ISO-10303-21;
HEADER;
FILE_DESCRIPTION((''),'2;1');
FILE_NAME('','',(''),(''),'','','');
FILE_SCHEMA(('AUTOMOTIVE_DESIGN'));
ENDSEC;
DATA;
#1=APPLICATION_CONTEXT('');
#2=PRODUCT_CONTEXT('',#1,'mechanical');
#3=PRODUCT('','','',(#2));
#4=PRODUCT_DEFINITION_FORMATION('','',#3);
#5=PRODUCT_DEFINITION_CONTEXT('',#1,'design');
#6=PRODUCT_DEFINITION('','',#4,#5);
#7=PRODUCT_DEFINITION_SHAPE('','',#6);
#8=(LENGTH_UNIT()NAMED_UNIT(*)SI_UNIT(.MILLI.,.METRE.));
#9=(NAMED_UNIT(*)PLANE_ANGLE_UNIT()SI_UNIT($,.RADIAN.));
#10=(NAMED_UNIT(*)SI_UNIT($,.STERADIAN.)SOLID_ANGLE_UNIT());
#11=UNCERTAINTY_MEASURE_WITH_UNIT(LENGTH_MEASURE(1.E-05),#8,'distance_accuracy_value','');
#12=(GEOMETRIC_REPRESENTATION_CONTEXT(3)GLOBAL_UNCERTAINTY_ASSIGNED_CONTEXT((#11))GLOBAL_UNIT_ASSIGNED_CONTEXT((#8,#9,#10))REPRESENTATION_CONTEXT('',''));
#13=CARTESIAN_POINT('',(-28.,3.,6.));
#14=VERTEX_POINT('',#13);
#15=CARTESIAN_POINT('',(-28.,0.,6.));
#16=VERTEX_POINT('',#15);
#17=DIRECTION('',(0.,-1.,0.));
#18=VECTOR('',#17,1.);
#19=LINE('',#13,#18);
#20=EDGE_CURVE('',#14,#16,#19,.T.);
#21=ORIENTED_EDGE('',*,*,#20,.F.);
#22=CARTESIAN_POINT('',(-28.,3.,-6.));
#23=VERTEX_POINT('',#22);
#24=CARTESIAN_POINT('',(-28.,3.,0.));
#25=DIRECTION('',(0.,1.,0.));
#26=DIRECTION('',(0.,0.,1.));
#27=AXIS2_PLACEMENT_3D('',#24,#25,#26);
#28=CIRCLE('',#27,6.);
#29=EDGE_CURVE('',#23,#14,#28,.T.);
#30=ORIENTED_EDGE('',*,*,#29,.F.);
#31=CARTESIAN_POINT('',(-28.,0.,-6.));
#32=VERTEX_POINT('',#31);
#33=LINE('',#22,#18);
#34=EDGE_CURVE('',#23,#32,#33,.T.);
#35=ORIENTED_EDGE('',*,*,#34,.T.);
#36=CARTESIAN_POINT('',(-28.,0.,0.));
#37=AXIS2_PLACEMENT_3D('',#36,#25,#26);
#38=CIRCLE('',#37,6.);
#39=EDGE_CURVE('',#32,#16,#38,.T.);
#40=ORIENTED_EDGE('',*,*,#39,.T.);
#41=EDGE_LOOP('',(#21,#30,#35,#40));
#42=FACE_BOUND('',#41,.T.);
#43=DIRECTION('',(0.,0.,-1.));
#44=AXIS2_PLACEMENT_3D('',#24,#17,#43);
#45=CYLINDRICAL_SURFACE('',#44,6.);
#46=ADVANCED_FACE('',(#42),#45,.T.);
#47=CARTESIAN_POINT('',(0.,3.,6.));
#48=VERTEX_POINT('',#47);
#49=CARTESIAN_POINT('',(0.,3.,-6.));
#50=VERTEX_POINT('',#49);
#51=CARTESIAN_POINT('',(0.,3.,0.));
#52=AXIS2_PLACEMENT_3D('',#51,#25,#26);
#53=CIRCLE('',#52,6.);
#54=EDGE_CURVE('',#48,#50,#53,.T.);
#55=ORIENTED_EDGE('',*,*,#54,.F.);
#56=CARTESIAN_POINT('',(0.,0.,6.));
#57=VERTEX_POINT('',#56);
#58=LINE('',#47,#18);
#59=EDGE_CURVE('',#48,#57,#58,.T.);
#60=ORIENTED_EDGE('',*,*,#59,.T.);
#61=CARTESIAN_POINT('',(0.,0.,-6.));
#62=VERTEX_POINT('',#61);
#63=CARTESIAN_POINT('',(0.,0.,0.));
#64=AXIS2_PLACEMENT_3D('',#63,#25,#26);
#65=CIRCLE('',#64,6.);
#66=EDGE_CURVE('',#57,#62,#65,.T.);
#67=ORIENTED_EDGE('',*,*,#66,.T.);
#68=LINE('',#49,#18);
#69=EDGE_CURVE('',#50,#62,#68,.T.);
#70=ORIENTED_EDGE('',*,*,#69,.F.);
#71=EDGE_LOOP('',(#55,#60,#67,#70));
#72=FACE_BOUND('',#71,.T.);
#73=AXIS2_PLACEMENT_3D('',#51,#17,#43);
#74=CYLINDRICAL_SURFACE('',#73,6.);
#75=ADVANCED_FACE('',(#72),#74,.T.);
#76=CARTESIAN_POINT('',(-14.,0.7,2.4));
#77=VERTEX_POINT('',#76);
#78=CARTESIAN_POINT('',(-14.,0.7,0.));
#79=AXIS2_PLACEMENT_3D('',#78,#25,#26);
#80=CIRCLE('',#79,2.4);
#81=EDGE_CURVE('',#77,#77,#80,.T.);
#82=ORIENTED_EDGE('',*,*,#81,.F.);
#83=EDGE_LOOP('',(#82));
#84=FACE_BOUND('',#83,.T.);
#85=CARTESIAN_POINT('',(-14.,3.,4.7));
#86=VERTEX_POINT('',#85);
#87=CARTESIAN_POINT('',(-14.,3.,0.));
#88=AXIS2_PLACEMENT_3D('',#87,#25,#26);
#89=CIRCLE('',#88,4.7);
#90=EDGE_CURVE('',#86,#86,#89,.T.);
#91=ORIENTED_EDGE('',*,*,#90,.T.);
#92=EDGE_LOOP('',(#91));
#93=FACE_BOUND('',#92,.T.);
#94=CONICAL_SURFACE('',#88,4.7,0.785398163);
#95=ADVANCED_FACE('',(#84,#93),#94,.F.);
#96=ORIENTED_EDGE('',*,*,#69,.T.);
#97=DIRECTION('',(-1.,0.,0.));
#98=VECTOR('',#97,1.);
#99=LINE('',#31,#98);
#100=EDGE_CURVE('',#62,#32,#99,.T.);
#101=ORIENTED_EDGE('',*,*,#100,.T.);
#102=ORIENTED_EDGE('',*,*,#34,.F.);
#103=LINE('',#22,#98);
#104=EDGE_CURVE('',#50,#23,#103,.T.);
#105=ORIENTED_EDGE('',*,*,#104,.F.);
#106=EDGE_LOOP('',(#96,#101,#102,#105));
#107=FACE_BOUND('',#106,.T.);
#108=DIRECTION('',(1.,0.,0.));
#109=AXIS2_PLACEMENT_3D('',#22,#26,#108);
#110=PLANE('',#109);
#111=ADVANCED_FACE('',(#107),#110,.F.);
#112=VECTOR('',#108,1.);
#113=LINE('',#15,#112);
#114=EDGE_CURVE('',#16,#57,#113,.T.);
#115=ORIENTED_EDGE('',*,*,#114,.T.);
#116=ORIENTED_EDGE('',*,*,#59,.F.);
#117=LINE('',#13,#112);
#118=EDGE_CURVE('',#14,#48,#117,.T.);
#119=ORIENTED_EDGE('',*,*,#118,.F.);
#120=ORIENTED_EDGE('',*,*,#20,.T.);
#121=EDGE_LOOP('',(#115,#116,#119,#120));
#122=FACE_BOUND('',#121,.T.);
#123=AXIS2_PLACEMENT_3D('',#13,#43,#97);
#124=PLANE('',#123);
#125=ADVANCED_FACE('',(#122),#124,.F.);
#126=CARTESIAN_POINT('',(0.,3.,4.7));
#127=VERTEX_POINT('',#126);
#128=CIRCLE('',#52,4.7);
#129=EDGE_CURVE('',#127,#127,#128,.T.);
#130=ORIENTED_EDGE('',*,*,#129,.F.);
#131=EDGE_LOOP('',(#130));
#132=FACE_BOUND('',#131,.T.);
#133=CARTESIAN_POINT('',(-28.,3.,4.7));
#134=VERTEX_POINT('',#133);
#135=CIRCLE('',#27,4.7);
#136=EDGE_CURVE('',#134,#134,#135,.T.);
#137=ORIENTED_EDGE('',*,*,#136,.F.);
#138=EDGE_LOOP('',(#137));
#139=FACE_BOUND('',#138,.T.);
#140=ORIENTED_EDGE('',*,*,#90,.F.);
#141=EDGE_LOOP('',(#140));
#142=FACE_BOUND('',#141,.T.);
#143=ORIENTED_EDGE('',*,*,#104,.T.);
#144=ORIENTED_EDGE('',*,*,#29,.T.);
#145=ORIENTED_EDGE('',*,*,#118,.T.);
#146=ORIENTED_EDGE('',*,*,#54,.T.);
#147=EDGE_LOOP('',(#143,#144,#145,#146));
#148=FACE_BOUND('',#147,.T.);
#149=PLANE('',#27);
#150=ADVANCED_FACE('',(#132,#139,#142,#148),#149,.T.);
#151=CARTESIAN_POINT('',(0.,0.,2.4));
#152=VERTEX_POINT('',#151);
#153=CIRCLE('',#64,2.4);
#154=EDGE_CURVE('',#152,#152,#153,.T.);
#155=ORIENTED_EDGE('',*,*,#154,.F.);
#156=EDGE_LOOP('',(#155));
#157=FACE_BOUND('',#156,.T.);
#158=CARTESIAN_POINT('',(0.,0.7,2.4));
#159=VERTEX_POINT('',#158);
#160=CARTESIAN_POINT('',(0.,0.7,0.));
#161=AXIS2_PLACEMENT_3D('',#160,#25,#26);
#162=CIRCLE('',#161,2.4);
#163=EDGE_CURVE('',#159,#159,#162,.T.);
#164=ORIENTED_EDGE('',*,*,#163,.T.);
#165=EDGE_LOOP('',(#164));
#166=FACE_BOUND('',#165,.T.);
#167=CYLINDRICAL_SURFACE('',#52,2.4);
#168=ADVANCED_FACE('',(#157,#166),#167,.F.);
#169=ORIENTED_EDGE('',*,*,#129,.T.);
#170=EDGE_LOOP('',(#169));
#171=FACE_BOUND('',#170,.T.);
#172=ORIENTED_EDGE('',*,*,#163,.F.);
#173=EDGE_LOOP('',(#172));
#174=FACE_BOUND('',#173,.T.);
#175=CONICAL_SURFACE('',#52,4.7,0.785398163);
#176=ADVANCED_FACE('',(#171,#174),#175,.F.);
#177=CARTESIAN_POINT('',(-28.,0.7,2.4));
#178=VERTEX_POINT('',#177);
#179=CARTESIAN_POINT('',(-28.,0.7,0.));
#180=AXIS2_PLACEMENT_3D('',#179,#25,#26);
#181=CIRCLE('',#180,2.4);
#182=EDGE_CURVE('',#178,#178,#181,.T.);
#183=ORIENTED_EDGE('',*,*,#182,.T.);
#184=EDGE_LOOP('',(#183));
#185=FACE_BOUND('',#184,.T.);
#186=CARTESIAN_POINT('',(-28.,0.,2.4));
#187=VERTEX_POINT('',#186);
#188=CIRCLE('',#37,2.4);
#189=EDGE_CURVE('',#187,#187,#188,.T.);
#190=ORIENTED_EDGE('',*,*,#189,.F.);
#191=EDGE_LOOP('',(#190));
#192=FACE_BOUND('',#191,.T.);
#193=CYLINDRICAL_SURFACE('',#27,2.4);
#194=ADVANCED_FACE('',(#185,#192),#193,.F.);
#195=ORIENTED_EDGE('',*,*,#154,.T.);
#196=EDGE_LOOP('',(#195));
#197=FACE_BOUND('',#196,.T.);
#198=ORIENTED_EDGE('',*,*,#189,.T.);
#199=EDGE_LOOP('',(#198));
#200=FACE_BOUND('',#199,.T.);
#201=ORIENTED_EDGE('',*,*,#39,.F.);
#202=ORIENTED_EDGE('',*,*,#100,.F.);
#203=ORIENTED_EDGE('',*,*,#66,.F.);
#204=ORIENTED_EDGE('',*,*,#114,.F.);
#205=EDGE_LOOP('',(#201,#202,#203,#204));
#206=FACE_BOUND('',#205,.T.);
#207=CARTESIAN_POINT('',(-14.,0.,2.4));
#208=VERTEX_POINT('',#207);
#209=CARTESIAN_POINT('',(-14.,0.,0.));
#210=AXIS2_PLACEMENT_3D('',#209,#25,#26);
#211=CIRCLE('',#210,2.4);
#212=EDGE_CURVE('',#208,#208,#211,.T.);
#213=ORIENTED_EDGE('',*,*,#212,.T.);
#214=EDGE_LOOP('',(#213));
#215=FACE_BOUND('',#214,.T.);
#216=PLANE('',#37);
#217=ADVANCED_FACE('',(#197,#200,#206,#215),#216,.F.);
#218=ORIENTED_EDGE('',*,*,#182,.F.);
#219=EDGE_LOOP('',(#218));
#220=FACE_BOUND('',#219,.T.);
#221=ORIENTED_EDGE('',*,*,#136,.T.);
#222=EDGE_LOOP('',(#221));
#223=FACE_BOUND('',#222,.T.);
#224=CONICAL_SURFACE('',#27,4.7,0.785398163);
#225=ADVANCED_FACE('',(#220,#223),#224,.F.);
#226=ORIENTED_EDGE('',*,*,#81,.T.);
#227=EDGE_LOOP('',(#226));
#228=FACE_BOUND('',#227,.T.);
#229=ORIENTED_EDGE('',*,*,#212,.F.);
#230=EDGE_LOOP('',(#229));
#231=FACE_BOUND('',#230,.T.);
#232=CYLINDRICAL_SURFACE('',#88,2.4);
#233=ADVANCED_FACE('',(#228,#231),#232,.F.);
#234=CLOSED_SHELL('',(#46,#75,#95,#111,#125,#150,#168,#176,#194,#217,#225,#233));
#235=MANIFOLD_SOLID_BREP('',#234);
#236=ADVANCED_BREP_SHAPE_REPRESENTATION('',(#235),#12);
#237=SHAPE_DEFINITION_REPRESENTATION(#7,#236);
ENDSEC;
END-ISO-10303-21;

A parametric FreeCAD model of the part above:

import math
import FreeCAD as App
import Part
import Sketcher

V = App.Vector
Q = App.Units.Quantity

doc = App.newDocument("Part")
body = doc.addObject("PartDesign::Body", "Body")

sketch1 = body.newObject("Sketcher::SketchObject", "Sketch")
sketch1.AttachmentSupport = (doc.getObject("XZ_Plane"), [""])
sketch1.MapMode = "FlatFace"
sketch1.addGeometry([
    Part.LineSegment(V(0, -6, 0), V(-28, -6, 0)),
    Part.ArcOfCircle(Part.Circle(V(-28, 0, 0), V(0, 0, 1), 6), math.radians(90), math.radians(270)),
    Part.LineSegment(V(-28, 6, 0), V(0, 6, 0)),
    Part.ArcOfCircle(Part.Circle(V(0, 0, 0), V(0, 0, 1), 6), math.radians(-90), math.radians(90)),
    Part.Circle(V(0, 0, 0), V(0, 0, 1), 2),
    Part.Circle(V(-14, 0, 0), V(0, 0, 1), 2),
    Part.Circle(V(-28, 0, 0), V(0, 0, 1), 2),
], False)
sketch1.addConstraint([
    Sketcher.Constraint("Tangent", 0, 2, 1, 2),
    Sketcher.Constraint("Tangent", 1, 1, 2, 1),
    Sketcher.Constraint("Tangent", 2, 2, 3, 2),
    Sketcher.Constraint("Tangent", 3, 1, 0, 1),
    Sketcher.Constraint("Horizontal", 0),
    Sketcher.Constraint("Horizontal", 2),
    Sketcher.Constraint("Coincident", 3, 3, -1, 1),
    Sketcher.Constraint("Coincident", 4, 3, -1, 1),
    Sketcher.Constraint("Coincident", 6, 3, 1, 3),
    Sketcher.Constraint("Equal", 4, 5),
    Sketcher.Constraint("Equal", 5, 6),
    Sketcher.Constraint("PointOnObject", 5, 3, -1),
    Sketcher.Constraint("Diameter", 4, Q("4 mm")),
    Sketcher.Constraint("Radius", 1, Q("6 mm")),
    Sketcher.Constraint("DistanceX", 0, 2, 0, 1, Q("28 mm")),
    Sketcher.Constraint("DistanceX", 5, 3, -1, 1, Q("14 mm")),
])
pad1 = body.newObject("PartDesign::Pad", "Pad")
pad1.Profile = sketch1
pad1.Length = 3
pad1.Reversed = True

sketch2 = body.newObject("Sketcher::SketchObject", "Sketch001")
sketch2.AttachmentSupport = (doc.getObject("XZ_Plane"), [""])
sketch2.MapMode = "FlatFace"
sketch2.AttachmentOffset = App.Placement(V(0, 0, -3), App.Rotation())
sketch2.addGeometry(Part.Circle(V(-14, 0, 0), V(0, 0, 1), 2.4), False)
sketch2.addConstraint([
    Sketcher.Constraint("PointOnObject", 0, 3, -1),
    Sketcher.Constraint("Diameter", 0, Q("4.8 mm")),
    Sketcher.Constraint("DistanceX", 0, 3, -1, 1, Q("14 mm")),
])
doc.recompute()
hole = body.newObject("PartDesign::Hole", "Hole")
hole.Profile = sketch2
hole.ThreadType = "None"
hole.Diameter = 4.8
hole.DepthType = "Dimension"
hole.Depth = 22.23
hole.DrillPoint = "Angled"
hole.DrillPointAngle = 118
hole.HoleCutType = "Countersink"
hole.HoleCutDiameter = 9.4
hole.HoleCutCountersinkAngle = 90
hole.Reversed = True

sketch3 = body.newObject("Sketcher::SketchObject", "Sketch002")
sketch3.AttachmentSupport = (doc.getObject("XZ_Plane"), [""])
sketch3.MapMode = "FlatFace"
sketch3.AttachmentOffset = App.Placement(V(0, 0, -3), App.Rotation())
sketch3.addGeometry([
    Part.Circle(V(-28, 0, 0), V(0, 0, 1), 2.4),
    Part.Circle(V(0, 0, 0), V(0, 0, 1), 2.4),
], False)
sketch3.addConstraint([
    Sketcher.Constraint("Coincident", 1, 3, -1, 1),
    Sketcher.Constraint("Equal", 0, 1),
    Sketcher.Constraint("PointOnObject", 0, 3, -1),
    Sketcher.Constraint("Diameter", 0, Q("4.8 mm")),
    Sketcher.Constraint("DistanceX", 0, 3, -1, 1, Q("28 mm")),
])
doc.recompute()
hole2 = body.newObject("PartDesign::Hole", "Hole001")
hole2.Profile = sketch3
hole2.ThreadType = "None"
hole2.Diameter = 4.8
hole2.DepthType = "Dimension"
hole2.Depth = 22.23
hole2.DrillPoint = "Angled"
hole2.DrillPointAngle = 118
hole2.HoleCutType = "Countersink"
hole2.HoleCutDiameter = 9.4
hole2.HoleCutCountersinkAngle = 90
hole2.Reversed = True

doc.recompute()
